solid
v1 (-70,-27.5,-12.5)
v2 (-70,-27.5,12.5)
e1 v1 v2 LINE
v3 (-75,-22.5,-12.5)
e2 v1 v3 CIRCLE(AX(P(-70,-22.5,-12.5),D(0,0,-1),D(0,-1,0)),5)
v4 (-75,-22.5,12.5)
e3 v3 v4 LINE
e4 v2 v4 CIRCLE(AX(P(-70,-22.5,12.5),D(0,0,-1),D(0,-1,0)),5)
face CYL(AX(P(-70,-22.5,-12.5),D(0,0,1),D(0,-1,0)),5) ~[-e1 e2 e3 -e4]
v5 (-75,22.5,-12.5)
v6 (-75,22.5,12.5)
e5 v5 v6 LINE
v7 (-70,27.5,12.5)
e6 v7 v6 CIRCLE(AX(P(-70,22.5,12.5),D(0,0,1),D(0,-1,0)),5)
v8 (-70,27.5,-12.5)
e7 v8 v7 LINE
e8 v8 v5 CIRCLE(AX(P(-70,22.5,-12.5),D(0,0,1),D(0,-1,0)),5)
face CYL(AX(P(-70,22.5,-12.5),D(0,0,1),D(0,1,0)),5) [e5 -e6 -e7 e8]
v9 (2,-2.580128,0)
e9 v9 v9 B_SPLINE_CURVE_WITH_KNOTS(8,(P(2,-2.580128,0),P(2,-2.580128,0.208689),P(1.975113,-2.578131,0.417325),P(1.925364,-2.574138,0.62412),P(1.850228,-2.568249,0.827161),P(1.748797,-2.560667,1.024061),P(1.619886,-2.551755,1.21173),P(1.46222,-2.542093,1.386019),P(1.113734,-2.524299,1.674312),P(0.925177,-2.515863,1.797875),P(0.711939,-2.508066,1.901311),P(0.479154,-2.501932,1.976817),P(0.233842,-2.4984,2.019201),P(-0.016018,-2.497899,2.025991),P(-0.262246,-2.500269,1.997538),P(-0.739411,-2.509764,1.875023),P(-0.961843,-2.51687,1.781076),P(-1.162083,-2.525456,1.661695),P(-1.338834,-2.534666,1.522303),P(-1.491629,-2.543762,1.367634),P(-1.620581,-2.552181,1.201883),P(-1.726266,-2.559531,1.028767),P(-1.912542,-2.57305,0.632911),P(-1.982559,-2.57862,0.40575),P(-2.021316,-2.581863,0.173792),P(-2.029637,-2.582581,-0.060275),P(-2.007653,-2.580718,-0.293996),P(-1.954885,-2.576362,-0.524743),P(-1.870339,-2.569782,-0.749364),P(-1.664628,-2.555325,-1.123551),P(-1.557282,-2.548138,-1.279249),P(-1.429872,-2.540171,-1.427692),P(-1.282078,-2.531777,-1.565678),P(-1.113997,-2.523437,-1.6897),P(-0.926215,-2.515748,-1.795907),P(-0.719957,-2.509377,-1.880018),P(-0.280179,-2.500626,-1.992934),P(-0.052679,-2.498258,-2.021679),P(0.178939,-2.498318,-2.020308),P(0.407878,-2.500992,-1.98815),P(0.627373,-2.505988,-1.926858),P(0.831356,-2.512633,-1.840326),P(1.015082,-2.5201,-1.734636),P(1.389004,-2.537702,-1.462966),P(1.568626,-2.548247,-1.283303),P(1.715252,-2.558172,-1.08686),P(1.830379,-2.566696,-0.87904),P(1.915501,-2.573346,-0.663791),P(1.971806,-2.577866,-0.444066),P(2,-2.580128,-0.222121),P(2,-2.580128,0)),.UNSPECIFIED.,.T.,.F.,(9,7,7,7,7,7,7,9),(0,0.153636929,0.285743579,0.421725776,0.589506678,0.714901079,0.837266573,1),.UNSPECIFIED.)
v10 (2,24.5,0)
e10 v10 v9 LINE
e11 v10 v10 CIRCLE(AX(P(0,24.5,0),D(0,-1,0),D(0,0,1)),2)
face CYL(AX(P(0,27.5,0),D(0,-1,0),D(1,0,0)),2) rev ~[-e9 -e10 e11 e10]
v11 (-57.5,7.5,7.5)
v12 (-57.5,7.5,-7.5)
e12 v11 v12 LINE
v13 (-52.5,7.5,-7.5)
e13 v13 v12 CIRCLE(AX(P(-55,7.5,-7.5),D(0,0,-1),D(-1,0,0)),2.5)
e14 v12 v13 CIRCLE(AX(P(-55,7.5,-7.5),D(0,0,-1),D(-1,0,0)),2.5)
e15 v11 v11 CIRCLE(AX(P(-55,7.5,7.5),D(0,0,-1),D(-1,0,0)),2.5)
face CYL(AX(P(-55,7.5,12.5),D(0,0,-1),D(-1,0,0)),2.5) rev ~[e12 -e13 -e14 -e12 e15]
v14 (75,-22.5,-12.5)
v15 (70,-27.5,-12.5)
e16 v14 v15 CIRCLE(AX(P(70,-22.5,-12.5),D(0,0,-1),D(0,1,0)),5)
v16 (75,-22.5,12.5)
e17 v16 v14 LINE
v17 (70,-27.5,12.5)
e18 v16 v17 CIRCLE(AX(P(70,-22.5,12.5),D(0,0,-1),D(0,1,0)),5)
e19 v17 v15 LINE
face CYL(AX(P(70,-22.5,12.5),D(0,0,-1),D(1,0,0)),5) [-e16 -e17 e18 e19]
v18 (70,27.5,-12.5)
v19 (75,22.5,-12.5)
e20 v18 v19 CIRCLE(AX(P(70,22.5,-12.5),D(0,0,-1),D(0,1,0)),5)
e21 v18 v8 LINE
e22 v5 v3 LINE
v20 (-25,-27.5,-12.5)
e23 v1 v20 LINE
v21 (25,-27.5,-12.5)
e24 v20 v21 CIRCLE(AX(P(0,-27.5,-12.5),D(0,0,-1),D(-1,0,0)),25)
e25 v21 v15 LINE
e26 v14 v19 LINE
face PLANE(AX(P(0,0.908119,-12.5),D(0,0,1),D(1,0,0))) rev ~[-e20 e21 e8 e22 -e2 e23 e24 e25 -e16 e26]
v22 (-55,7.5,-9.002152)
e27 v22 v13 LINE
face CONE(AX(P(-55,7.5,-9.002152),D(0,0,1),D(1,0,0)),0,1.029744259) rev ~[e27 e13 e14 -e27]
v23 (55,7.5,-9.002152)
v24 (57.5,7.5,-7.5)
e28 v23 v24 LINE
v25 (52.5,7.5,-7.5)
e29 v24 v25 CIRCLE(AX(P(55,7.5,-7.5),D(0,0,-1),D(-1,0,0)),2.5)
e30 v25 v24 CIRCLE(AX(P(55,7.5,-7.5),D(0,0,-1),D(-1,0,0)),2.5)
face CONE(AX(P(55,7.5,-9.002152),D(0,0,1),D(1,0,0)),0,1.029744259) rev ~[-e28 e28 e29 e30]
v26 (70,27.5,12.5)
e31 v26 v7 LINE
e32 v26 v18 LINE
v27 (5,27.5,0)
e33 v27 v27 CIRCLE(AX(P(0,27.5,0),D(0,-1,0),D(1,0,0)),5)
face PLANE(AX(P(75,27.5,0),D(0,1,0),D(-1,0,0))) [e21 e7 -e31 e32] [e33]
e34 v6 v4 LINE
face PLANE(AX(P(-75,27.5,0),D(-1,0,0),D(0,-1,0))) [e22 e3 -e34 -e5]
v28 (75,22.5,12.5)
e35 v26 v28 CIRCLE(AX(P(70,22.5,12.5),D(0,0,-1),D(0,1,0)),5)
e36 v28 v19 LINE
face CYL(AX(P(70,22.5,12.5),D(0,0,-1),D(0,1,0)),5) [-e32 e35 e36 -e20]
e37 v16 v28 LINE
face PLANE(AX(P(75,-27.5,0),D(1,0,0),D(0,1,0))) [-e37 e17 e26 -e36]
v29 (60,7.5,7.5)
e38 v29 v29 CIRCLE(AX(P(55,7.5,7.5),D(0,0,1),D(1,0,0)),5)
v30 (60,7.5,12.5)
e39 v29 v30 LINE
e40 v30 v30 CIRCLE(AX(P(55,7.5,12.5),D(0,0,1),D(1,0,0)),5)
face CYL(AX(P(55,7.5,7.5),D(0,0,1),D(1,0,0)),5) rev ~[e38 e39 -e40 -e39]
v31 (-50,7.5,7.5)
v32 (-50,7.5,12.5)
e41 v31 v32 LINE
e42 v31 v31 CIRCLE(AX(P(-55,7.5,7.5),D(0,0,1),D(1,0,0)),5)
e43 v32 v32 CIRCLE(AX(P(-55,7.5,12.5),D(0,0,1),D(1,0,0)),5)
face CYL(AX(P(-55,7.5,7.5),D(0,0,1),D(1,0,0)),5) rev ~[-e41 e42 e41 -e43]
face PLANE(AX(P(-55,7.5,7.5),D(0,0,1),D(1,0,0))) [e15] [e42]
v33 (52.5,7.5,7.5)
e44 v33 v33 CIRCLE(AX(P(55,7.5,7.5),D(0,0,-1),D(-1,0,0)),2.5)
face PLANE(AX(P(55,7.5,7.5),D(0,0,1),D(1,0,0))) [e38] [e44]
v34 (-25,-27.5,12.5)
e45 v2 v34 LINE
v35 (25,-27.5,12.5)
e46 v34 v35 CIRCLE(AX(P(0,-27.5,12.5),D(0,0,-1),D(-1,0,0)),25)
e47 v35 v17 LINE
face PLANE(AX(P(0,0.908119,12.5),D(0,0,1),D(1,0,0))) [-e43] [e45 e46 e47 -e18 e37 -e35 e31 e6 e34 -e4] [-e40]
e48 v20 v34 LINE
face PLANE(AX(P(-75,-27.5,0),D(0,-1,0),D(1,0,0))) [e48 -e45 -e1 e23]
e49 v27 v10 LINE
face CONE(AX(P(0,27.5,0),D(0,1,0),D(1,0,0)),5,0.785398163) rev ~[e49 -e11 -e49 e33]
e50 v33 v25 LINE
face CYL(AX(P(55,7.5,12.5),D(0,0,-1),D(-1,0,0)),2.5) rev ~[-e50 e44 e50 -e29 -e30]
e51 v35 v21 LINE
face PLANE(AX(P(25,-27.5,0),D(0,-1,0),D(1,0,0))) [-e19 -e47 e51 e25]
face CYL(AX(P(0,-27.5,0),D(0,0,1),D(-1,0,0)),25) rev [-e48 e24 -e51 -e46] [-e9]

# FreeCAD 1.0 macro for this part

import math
import FreeCAD as App
import Part
import Sketcher


def edges_at(feature, points):
    """Names of the edges that pass closest to the given points."""
    edges = feature.Shape.Edges
    near = lambda p: min(range(len(edges)), key=lambda i: edges[i].distToShape(Part.Vertex(*p))[0])
    return sorted({f"Edge{near(p) + 1}" for p in points})

doc = App.newDocument("Part")
body = doc.addObject("PartDesign::Body", "Body")

# Sketch on XY plane
sketch1 = body.newObject("Sketcher::SketchObject", "Sketch")
sketch1.AttachmentSupport = (doc.getObject("XY_Plane"), [""])
sketch1.MapMode = "FlatFace"
sketch1.addGeometry(Part.LineSegment(App.Vector(75, 28, 0), App.Vector(-75, 28, 0)), False)
sketch1.addGeometry(Part.LineSegment(App.Vector(-75, 28, 0), App.Vector(-75, -28, 0)), False)
sketch1.addGeometry(Part.LineSegment(App.Vector(-75, -28, 0), App.Vector(-25, -28, 0)), False)
sketch1.addGeometry(Part.ArcOfCircle(Part.Circle(App.Vector(0, -28, 0), App.Vector(0, 0, 1), 25), math.radians(0), math.radians(180)), False)
sketch1.addGeometry(Part.LineSegment(App.Vector(25, -28, 0), App.Vector(75, -28, 0)), False)
sketch1.addGeometry(Part.LineSegment(App.Vector(75, -28, 0), App.Vector(75, 28, 0)), False)
sketch1.addConstraint(Sketcher.Constraint("Coincident", 0, 2, 1, 1))
sketch1.addConstraint(Sketcher.Constraint("Coincident", 1, 2, 2, 1))
sketch1.addConstraint(Sketcher.Constraint("Coincident", 2, 2, 3, 2))
sketch1.addConstraint(Sketcher.Constraint("Coincident", 3, 1, 4, 1))
sketch1.addConstraint(Sketcher.Constraint("Coincident", 4, 2, 5, 1))
sketch1.addConstraint(Sketcher.Constraint("Coincident", 5, 2, 0, 1))
sketch1.addConstraint(Sketcher.Constraint("Horizontal", 0))
sketch1.addConstraint(Sketcher.Constraint("Vertical", 1))
sketch1.addConstraint(Sketcher.Constraint("Horizontal", 2))
sketch1.addConstraint(Sketcher.Constraint("Horizontal", 4))
sketch1.addConstraint(Sketcher.Constraint("Vertical", 5))
sketch1.addConstraint(Sketcher.Constraint("Symmetric", 0, 2, 4, 2, -1, 1))
sketch1.addConstraint(Sketcher.Constraint("Symmetric", 2, 2, 3, 1, -2))
sketch1.addConstraint(Sketcher.Constraint("Horizontal", 3, 3, 1, 2))
sketch1.addConstraint(Sketcher.Constraint("Radius", 3, 25.0))
sketch1.addConstraint(Sketcher.Constraint("DistanceX", 0, 2, 0, 1, 150.0))
sketch1.addConstraint(Sketcher.Constraint("DistanceY", 1, 2, 1, 1, 55.0))
pad1 = body.newObject("PartDesign::Pad", "Pad")
pad1.Profile = sketch1
pad1.Length = 25
pad1.Midplane = True
doc.recompute()

fillet = body.newObject("PartDesign::Fillet", "Fillet")
fillet.Base = (pad1, edges_at(pad1, [
    (75, 27.5, 0),
    (-75, 27.5, 0),
    (-75, -27.5, 0),
    (75, -27.5, 0),
]))
fillet.Radius = 5

# Sketch on XY plane
sketch2 = body.newObject("Sketcher::SketchObject", "Sketch001")
sketch2.AttachmentSupport = (doc.getObject("XY_Plane"), [""])
sketch2.MapMode = "FlatFace"
sketch2.AttachmentOffset = App.Placement(App.Vector(0, 0, 12.5), App.Rotation())
sketch2.addGeometry(Part.Circle(App.Vector(-55, 7.5, 0), App.Vector(0, 0, 1), 2.5), False)
sketch2.addGeometry(Part.Circle(App.Vector(55, 7.5, 0), App.Vector(0, 0, 1), 2.5), False)
sketch2.addConstraint(Sketcher.Constraint("Equal", 0, 1))
sketch2.addConstraint(Sketcher.Constraint("Symmetric", 0, 3, 1, 3, -2))
sketch2.addConstraint(Sketcher.Constraint("Diameter", 0, 5.0))
sketch2.addConstraint(Sketcher.Constraint("DistanceX", 0, 3, -1, 1, 55.0))
sketch2.addConstraint(Sketcher.Constraint("DistanceY", -1, 1, 0, 3, 7.5))
doc.recompute()
hole = body.newObject("PartDesign::Hole", "Hole")
hole.Profile = sketch2
hole.ThreadType = "None"
hole.Diameter = 5
hole.DepthType = "Dimension"
hole.Depth = 20
hole.DrillPoint = "Angled"
hole.DrillPointAngle = 118
hole.HoleCutType = "Counterbore"
hole.HoleCutDiameter = 10
hole.HoleCutDepth = 5

# Sketch on XZ plane
sketch3 = body.newObject("Sketcher::SketchObject", "Sketch002")
sketch3.AttachmentSupport = (doc.getObject("XZ_Plane"), [""])
sketch3.MapMode = "FlatFace"
sketch3.AttachmentOffset = App.Placement(App.Vector(0, 0, -27.5), App.Rotation())
sketch3.addGeometry(Part.Circle(App.Vector(0, 0, 0), App.Vector(0, 0, 1), 2), False)
sketch3.addConstraint(Sketcher.Constraint("Coincident", 0, 3, -1, 1))
sketch3.addConstraint(Sketcher.Constraint("Diameter", 0, 4.0))
doc.recompute()
hole2 = body.newObject("PartDesign::Hole", "Hole001")
hole2.Profile = sketch3
hole2.ThreadType = "None"
hole2.Diameter = 4
hole2.DepthType = "ThroughAll"
hole2.HoleCutType = "Countersink"
hole2.HoleCutDiameter = 10
hole2.HoleCutCountersinkAngle = 90
hole2.Reversed = True

doc.recompute()
